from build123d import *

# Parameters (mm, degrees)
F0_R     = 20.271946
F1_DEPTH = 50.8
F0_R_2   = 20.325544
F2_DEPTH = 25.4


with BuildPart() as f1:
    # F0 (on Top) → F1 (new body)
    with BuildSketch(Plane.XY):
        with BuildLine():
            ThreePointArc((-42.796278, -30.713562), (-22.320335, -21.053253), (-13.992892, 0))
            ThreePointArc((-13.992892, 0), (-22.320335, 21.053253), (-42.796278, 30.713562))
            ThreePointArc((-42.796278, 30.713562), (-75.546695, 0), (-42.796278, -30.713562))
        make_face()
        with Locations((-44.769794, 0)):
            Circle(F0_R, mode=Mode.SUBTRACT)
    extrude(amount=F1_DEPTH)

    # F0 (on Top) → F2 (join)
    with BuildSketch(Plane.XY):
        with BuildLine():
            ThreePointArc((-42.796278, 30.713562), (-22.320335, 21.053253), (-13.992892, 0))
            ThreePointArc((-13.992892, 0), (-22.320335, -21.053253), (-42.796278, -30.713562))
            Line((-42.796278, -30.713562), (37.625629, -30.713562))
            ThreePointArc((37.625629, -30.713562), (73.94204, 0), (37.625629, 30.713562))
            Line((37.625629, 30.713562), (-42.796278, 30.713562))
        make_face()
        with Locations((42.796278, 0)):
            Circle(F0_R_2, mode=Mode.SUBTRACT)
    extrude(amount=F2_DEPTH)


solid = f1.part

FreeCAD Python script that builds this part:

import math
import FreeCAD as App
import Part
import Sketcher
Q = App.Units.Quantity

doc = App.newDocument("Part")
body = doc.addObject("PartDesign::Body", "Body")

# Sketch on XY plane
sketch1 = doc.addObject("Sketcher::SketchObject", "Sketch")
body.addObject(sketch1)
sketch1.AttachmentSupport = (doc.XY_Plane, [""])
sketch1.MapMode = "FlatFace"
sketch1.addGeometry(Part.ArcOfCircle(Part.Circle(App.Vector(-45, 0, 0), App.Vector(0, 0, 1), 31), math.radians(-86), math.radians(0)), False)
sketch1.addGeometry(Part.ArcOfCircle(Part.Circle(App.Vector(-45, 0, 0), App.Vector(0, 0, 1), 31), math.radians(0), math.radians(86)), False)
sketch1.addGeometry(Part.ArcOfCircle(Part.Circle(App.Vector(-45, 0, 0), App.Vector(0, 0, 1), 31), math.radians(86), math.radians(274)), False)
sketch1.addGeometry(Part.Circle(App.Vector(-45, 0, 0), App.Vector(0, 0, 1), 20), False)
sketch1.addConstraint(Sketcher.Constraint("Tangent", 0, 2, 1, 1))
sketch1.addConstraint(Sketcher.Constraint("Tangent", 1, 2, 2, 1))
sketch1.addConstraint(Sketcher.Constraint("Tangent", 2, 2, 0, 1))
sketch1.addConstraint(Sketcher.Constraint("Coincident", 3, 3, 0, 3))
sketch1.addConstraint(Sketcher.Constraint("Symmetric", 1, 2, 2, 2, -1))
sketch1.addConstraint(Sketcher.Constraint("PointOnObject", 0, 2, -1))
sketch1.addConstraint(Sketcher.Constraint("Radius", 0, 30.776902))
sketch1.addConstraint(Sketcher.Constraint("Diameter", 3, 40.543892))
sketch1.addConstraint(Sketcher.Constraint("DistanceX", 2, 2, -1, 1, 42.796278))
sketch1.addConstraint(Sketcher.Constraint("DistanceY", 2, 2, -1, 1, 30.713562))
pad1 = doc.addObject("PartDesign::Pad", "Pad")
body.addObject(pad1)
pad1.Profile = sketch1
pad1.Length = Q("2 in")

# Sketch on XY plane
sketch2 = doc.addObject("Sketcher::SketchObject", "Sketch001")
body.addObject(sketch2)
sketch2.AttachmentSupport = (doc.XY_Plane, [""])
sketch2.MapMode = "FlatFace"
sketch2.addGeometry(Part.ArcOfCircle(Part.Circle(App.Vector(-45, 0, 0), App.Vector(0, 0, 1), 31), math.radians(0), math.radians(86)), False)
sketch2.addGeometry(Part.ArcOfCircle(Part.Circle(App.Vector(-45, 0, 0), App.Vector(0, 0, 1), 31), math.radians(-86), math.radians(0)), False)
sketch2.addGeometry(Part.LineSegment(App.Vector(-43, -31, 0), App.Vector(38, -31, 0)), False)
sketch2.addGeometry(Part.ArcOfCircle(Part.Circle(App.Vector(43, 0, 0), App.Vector(0, 0, 1), 31), math.radians(-100), math.radians(100)), False)
sketch2.addGeometry(Part.LineSegment(App.Vector(38, 31, 0), App.Vector(-43, 31, 0)), False)
sketch2.addGeometry(Part.Circle(App.Vector(43, 0, 0), App.Vector(0, 0, 1), 20), False)
sketch2.addConstraint(Sketcher.Constraint("Tangent", 0, 1, 1, 2))
sketch2.addConstraint(Sketcher.Constraint("Coincident", 1, 1, 2, 1))
sketch2.addConstraint(Sketcher.Constraint("Coincident", 2, 2, 3, 1))
sketch2.addConstraint(Sketcher.Constraint("Coincident", 3, 2, 4, 1))
sketch2.addConstraint(Sketcher.Constraint("Coincident", 4, 2, 0, 2))
sketch2.addConstraint(Sketcher.Constraint("Horizontal", 2))
sketch2.addConstraint(Sketcher.Constraint("Horizontal", 4))
sketch2.addConstraint(Sketcher.Constraint("Coincident", 5, 3, 3, 3))
sketch2.addConstraint(Sketcher.Constraint("Equal", 0, 1))
sketch2.addConstraint(Sketcher.Constraint("Symmetric", 2, 2, 3, 2, -1))
sketch2.addConstraint(Sketcher.Constraint("PointOnObject", 0, 3, -1))
sketch2.addConstraint(Sketcher.Constraint("PointOnObject", 0, 1, -1))
sketch2.addConstraint(Sketcher.Constraint("Radius", 0, 30.776902))
sketch2.addConstraint(Sketcher.Constraint("Diameter", 5, 40.651088))
sketch2.addConstraint(Sketcher.Constraint("Radius", 3, 31.145762))
sketch2.addConstraint(Sketcher.Constraint("DistanceX", 2, 1, 2, 2, 80.421907))
sketch2.addConstraint(Sketcher.Constraint("DistanceX", -1, 1, 2, 2, 37.625629))
sketch2.addConstraint(Sketcher.Constraint("DistanceY", 2, 2, -1, 1, 30.713562))
pad2 = doc.addObject("PartDesign::Pad", "Pad001")
body.addObject(pad2)
pad2.Profile = sketch2
pad2.Length = Q("1 in")

doc.recompute()
